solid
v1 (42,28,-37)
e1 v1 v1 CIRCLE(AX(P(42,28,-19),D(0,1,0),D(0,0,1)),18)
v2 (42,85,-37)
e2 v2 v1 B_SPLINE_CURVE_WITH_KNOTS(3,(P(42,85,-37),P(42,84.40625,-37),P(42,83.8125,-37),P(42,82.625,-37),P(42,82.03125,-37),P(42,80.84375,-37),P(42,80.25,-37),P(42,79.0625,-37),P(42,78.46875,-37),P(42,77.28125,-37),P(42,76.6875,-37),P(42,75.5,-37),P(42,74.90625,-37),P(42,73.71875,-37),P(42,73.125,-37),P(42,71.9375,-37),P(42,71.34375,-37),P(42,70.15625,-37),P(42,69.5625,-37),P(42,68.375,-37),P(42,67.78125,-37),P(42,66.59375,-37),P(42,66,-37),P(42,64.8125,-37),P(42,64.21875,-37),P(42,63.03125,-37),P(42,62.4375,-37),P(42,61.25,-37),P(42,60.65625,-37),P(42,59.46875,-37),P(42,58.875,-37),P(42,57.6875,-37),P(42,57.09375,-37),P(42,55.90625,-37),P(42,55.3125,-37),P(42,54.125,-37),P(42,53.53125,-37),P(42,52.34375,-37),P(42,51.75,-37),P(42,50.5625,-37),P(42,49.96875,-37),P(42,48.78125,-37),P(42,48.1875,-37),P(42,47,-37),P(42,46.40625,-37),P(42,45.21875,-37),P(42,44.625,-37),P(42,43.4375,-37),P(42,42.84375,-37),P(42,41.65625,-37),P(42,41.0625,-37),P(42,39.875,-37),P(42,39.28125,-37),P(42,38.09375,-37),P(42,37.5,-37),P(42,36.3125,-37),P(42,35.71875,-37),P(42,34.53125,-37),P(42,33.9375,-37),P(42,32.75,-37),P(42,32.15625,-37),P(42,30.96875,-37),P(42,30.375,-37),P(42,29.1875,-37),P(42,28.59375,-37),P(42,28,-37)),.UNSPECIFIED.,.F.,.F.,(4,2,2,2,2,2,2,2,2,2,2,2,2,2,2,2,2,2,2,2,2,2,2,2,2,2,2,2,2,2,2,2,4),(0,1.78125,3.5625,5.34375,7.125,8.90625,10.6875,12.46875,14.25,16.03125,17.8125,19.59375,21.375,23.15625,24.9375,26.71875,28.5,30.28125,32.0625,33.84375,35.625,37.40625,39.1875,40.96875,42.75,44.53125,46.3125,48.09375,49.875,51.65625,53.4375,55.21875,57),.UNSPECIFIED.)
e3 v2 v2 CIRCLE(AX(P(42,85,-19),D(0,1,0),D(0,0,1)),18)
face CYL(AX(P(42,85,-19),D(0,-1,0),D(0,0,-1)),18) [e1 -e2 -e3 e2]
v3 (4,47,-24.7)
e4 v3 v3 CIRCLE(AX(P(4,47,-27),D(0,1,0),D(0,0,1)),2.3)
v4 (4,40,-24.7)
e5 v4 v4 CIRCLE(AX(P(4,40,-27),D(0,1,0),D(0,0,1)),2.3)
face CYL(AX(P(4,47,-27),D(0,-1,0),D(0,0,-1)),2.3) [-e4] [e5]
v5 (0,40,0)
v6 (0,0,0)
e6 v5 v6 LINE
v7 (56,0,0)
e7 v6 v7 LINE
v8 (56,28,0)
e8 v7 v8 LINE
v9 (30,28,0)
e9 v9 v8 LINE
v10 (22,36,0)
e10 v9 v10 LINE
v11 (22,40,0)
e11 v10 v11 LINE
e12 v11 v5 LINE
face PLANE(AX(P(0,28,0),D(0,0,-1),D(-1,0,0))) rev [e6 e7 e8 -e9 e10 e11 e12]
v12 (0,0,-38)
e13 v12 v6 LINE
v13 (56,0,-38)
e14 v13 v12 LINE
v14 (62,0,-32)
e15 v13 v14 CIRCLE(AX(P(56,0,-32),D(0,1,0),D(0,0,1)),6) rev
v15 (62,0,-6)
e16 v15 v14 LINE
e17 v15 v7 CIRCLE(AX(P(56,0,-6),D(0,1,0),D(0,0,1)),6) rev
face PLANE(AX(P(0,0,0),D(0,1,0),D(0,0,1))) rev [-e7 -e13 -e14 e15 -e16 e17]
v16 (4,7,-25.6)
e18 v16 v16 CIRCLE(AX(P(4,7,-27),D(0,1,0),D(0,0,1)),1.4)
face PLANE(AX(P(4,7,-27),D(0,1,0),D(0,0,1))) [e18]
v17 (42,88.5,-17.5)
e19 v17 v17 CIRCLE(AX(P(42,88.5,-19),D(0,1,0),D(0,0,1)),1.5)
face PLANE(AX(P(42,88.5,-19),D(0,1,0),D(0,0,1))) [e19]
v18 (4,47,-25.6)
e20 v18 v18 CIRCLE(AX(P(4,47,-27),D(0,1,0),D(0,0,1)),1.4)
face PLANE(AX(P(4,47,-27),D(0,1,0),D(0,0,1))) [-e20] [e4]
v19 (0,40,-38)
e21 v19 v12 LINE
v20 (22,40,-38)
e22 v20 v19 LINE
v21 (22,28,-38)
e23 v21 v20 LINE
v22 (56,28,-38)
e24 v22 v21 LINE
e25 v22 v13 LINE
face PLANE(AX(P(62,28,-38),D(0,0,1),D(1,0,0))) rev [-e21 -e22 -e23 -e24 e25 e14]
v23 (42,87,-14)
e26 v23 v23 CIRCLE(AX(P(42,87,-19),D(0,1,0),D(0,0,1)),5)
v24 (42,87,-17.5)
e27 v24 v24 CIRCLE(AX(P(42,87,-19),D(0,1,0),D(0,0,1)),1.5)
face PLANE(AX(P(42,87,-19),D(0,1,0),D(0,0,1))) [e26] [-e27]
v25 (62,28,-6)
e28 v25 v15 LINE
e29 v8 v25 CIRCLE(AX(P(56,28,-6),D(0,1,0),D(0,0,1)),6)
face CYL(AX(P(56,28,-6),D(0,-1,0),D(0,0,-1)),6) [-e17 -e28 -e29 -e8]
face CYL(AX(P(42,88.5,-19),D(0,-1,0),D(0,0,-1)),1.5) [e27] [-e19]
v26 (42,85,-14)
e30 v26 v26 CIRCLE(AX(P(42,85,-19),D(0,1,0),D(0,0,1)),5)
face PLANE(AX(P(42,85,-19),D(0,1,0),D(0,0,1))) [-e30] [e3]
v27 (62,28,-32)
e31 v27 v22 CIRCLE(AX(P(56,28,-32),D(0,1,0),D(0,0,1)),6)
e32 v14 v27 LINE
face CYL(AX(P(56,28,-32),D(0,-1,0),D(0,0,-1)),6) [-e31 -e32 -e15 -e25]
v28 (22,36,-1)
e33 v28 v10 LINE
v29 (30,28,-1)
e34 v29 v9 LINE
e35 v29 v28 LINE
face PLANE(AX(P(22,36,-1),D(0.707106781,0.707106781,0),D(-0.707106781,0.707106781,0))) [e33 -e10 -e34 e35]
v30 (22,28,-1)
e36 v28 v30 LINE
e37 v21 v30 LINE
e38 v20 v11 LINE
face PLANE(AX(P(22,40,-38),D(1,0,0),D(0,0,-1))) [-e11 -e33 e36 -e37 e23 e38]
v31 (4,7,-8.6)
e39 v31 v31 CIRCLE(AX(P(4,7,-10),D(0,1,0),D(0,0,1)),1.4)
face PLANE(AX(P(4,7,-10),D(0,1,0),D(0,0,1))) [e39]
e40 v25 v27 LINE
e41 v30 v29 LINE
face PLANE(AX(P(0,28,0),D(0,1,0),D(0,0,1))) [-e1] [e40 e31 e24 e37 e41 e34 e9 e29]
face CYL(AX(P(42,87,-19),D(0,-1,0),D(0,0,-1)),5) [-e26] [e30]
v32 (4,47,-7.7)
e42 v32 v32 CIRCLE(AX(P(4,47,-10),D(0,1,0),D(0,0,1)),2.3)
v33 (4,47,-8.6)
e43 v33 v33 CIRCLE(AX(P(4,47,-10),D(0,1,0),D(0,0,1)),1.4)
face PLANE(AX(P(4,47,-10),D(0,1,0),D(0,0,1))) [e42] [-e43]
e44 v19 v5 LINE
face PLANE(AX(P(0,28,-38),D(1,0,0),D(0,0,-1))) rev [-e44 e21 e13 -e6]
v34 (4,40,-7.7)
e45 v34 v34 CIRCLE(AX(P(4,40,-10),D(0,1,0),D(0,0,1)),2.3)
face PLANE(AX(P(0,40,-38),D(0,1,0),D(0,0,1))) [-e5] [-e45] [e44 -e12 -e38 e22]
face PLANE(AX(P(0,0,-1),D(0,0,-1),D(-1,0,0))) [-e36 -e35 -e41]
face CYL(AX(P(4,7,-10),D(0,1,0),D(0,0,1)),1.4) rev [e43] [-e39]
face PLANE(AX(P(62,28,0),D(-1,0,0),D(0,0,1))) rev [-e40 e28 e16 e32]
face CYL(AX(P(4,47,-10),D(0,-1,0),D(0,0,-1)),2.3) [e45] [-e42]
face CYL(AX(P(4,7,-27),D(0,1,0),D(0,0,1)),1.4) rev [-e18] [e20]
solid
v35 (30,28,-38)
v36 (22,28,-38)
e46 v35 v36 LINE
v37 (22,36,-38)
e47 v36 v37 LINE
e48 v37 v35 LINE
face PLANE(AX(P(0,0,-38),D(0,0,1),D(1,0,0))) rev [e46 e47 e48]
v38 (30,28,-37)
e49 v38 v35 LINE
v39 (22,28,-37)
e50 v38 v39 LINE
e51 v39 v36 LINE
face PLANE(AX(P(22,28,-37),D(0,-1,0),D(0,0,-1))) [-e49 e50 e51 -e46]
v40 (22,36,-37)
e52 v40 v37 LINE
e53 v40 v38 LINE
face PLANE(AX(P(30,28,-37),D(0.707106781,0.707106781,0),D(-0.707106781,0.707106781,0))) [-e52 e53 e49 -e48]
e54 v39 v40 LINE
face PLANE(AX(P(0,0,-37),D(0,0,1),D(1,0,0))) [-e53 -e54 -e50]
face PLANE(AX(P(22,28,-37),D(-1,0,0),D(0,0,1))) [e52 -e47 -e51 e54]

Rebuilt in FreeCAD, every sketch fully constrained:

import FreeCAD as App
import Part
import Sketcher
from FreeCAD import Vector
Q = App.Units.Quantity


def edges_at(feature, points):
    """Names of the edges that pass closest to the given points."""
    edges = feature.Shape.Edges
    near = lambda p: min(range(len(edges)), key=lambda i: edges[i].distToShape(Part.Vertex(*p))[0])
    return sorted({f"Edge{near(p) + 1}" for p in points})

doc = App.newDocument("Part")
body = doc.addObject("PartDesign::Body", "Body")

# Sketch on XZ plane
sketch1 = body.newObject("Sketcher::SketchObject", "Sketch")
sketch1.AttachmentSupport = (doc.getObject("XZ_Plane"), [""])
sketch1.MapMode = "FlatFace"
sketch1.addGeometry([
    Part.LineSegment(Vector(0, -38, 0), Vector(0, 0, 0)),
    Part.LineSegment(Vector(0, 0, 0), Vector(62, 0, 0)),
    Part.LineSegment(Vector(62, 0, 0), Vector(62, -38, 0)),
    Part.LineSegment(Vector(62, -38, 0), Vector(0, -38, 0)),
], False)
sketch1.addConstraint([
    Sketcher.Constraint("Coincident", 0, 2, 1, 1),
    Sketcher.Constraint("Coincident", 1, 2, 2, 1),
    Sketcher.Constraint("Coincident", 2, 2, 3, 1),
    Sketcher.Constraint("Coincident", 3, 2, 0, 1),
    Sketcher.Constraint("Vertical", 0),
    Sketcher.Constraint("Horizontal", 1),
    Sketcher.Constraint("Vertical", 2),
    Sketcher.Constraint("Horizontal", 3),
    Sketcher.Constraint("Coincident", 0, 2, -1, 1),
    Sketcher.Constraint("DistanceX", 1, 1, 1, 2, Q("62 mm")),
    Sketcher.Constraint("DistanceY", 0, 1, 0, 2, Q("38 mm")),
])
pad1 = body.newObject("PartDesign::Pad", "Pad")
pad1.Profile = sketch1
pad1.Length = 28
pad1.Reversed = True
doc.recompute()

fillet = body.newObject("PartDesign::Fillet", "Fillet")
fillet.Base = (pad1, edges_at(pad1, [(62, 14, -38), (62, 14, 0)]))
fillet.Radius = 6

# Sketch on XY plane
sketch2 = body.newObject("Sketcher::SketchObject", "Sketch001")
sketch2.AttachmentSupport = (doc.getObject("XY_Plane"), [""])
sketch2.MapMode = "FlatFace"
sketch2.addGeometry([
    Part.LineSegment(Vector(0, 40, 0), Vector(0, 28, 0)),
    Part.LineSegment(Vector(0, 28, 0), Vector(22, 28, 0)),
    Part.LineSegment(Vector(22, 28, 0), Vector(22, 40, 0)),
    Part.LineSegment(Vector(22, 40, 0), Vector(0, 40, 0)),
], False)
sketch2.addConstraint([
    Sketcher.Constraint("Coincident", 0, 2, 1, 1),
    Sketcher.Constraint("Coincident", 1, 2, 2, 1),
    Sketcher.Constraint("Coincident", 2, 2, 3, 1),
    Sketcher.Constraint("Coincident", 3, 2, 0, 1),
    Sketcher.Constraint("Vertical", 0),
    Sketcher.Constraint("Horizontal", 1),
    Sketcher.Constraint("Vertical", 2),
    Sketcher.Constraint("Horizontal", 3),
    Sketcher.Constraint("PointOnObject", 0, 2, -2),
    Sketcher.Constraint("DistanceX", 1, 1, 1, 2, Q("22 mm")),
    Sketcher.Constraint("DistanceY", 0, 2, 0, 1, Q("12 mm")),
    Sketcher.Constraint("DistanceY", -1, 1, 0, 2, Q("28 mm")),
])
pad2 = body.newObject("PartDesign::Pad", "Pad001")
pad2.Profile = sketch2
pad2.Length = 38
pad2.Reversed = True

# Sketch on XZ plane
sketch3 = body.newObject("Sketcher::SketchObject", "Sketch002")
sketch3.AttachmentSupport = (doc.getObject("XZ_Plane"), [""])
sketch3.MapMode = "FlatFace"
sketch3.AttachmentOffset = App.Placement(Vector(0, 0, -40), App.Rotation())
sketch3.addGeometry([
    Part.Circle(Vector(4, -10, 0), Vector(0, 0, 1), 2.3),
    Part.Circle(Vector(4, -27, 0), Vector(0, 0, 1), 2.3),
], False)
sketch3.addConstraint([
    Sketcher.Constraint("Equal", 0, 1),
    Sketcher.Constraint("Vertical", 0, 3, 1, 3),
    Sketcher.Constraint("Diameter", 0, Q("4.6 mm")),
    Sketcher.Constraint("DistanceX", -1, 1, 0, 3, Q("4 mm")),
    Sketcher.Constraint("DistanceY", 0, 3, -1, 1, Q("10 mm")),
    Sketcher.Constraint("DistanceY", 1, 3, -1, 1, Q("27 mm")),
])
pad3 = body.newObject("PartDesign::Pad", "Pad002")
pad3.Profile = sketch3
pad3.Length = 7
pad3.Reversed = True

# Sketch on XZ plane
sketch4 = body.newObject("Sketcher::SketchObject", "Sketch003")
sketch4.AttachmentSupport = (doc.getObject("XZ_Plane"), [""])
sketch4.MapMode = "FlatFace"
sketch4.AttachmentOffset = App.Placement(Vector(0, 0, -47), App.Rotation())
sketch4.addGeometry([
    Part.Circle(Vector(4, -10, 0), Vector(0, 0, 1), 1.4),
    Part.Circle(Vector(4, -27, 0), Vector(0, 0, 1), 1.4),
], False)
sketch4.addConstraint([
    Sketcher.Constraint("Equal", 0, 1),
    Sketcher.Constraint("Vertical", 0, 3, 1, 3),
    Sketcher.Constraint("Diameter", 0, Q("2.8 mm")),
    Sketcher.Constraint("DistanceX", -1, 1, 0, 3, Q("4 mm")),
    Sketcher.Constraint("DistanceY", 0, 3, -1, 1, Q("10 mm")),
    Sketcher.Constraint("DistanceY", 1, 3, -1, 1, Q("27 mm")),
])
pocket1 = body.newObject("PartDesign::Pocket", "Pocket")
pocket1.Profile = sketch4
pocket1.Length = 40
pocket1.Reversed = True

# Sketch on XZ plane
sketch5 = body.newObject("Sketcher::SketchObject", "Sketch004")
sketch5.AttachmentSupport = (doc.getObject("XZ_Plane"), [""])
sketch5.MapMode = "FlatFace"
sketch5.AttachmentOffset = App.Placement(Vector(0, 0, -28), App.Rotation())
sketch5.addGeometry(Part.Circle(Vector(42, -19, 0), Vector(0, 0, 1), 18), False)
sketch5.addConstraint([
    Sketcher.Constraint("Diameter", 0, Q("36 mm")),
    Sketcher.Constraint("DistanceX", -1, 1, 0, 3, Q("42 mm")),
    Sketcher.Constraint("DistanceY", 0, 3, -1, 1, Q("19 mm")),
])
pad4 = body.newObject("PartDesign::Pad", "Pad003")
pad4.Profile = sketch5
pad4.Length = 57
pad4.Reversed = True

# Sketch on XZ plane
sketch6 = body.newObject("Sketcher::SketchObject", "Sketch005")
sketch6.AttachmentSupport = (doc.getObject("XZ_Plane"), [""])
sketch6.MapMode = "FlatFace"
sketch6.AttachmentOffset = App.Placement(Vector(0, 0, -85), App.Rotation())
sketch6.addGeometry(Part.Circle(Vector(42, -19, 0), Vector(0, 0, 1), 5), False)
sketch6.addConstraint([
    Sketcher.Constraint("Diameter", 0, Q("10 mm")),
    Sketcher.Constraint("DistanceX", -1, 1, 0, 3, Q("42 mm")),
    Sketcher.Constraint("DistanceY", 0, 3, -1, 1, Q("19 mm")),
])
pad5 = body.newObject("PartDesign::Pad", "Pad004")
pad5.Profile = sketch6
pad5.Length = 2
pad5.Reversed = True

# Sketch on XY plane
sketch7 = body.newObject("Sketcher::SketchObject", "Sketch006")
sketch7.AttachmentSupport = (doc.getObject("XY_Plane"), [""])
sketch7.MapMode = "FlatFace"
sketch7.addGeometry([
    Part.LineSegment(Vector(22, 28, 0), Vector(30, 28, 0)),
    Part.LineSegment(Vector(30, 28, 0), Vector(22, 36, 0)),
    Part.LineSegment(Vector(22, 36, 0), Vector(22, 28, 0)),
], False)
sketch7.addConstraint([
    Sketcher.Constraint("Coincident", 0, 2, 1, 1),
    Sketcher.Constraint("Coincident", 1, 2, 2, 1),
    Sketcher.Constraint("Coincident", 2, 2, 0, 1),
    Sketcher.Constraint("Horizontal", 0),
    Sketcher.Constraint("Vertical", 2),
    Sketcher.Constraint("Equal", 0, 2),
    Sketcher.Constraint("DistanceX", 0, 1, 0, 2, Q("8 mm")),
    Sketcher.Constraint("DistanceX", -1, 1, 0, 2, Q("30 mm")),
    Sketcher.Constraint("DistanceY", -1, 1, 0, 2, Q("28 mm")),
])
pad6 = body.newObject("PartDesign::Pad", "Pad005")
pad6.Profile = sketch7
pad6.Length = 1
pad6.Reversed = True

# Sketch on XZ plane
sketch8 = body.newObject("Sketcher::SketchObject", "Sketch007")
sketch8.AttachmentSupport = (doc.getObject("XZ_Plane"), [""])
sketch8.MapMode = "FlatFace"
sketch8.AttachmentOffset = App.Placement(Vector(0, 0, -87), App.Rotation())
sketch8.addGeometry(Part.Circle(Vector(42, -19, 0), Vector(0, 0, 1), 1.5), False)
sketch8.addConstraint([
    Sketcher.Constraint("Diameter", 0, Q("3 mm")),
    Sketcher.Constraint("DistanceX", -1, 1, 0, 3, Q("42 mm")),
    Sketcher.Constraint("DistanceY", 0, 3, -1, 1, Q("19 mm")),
])
pad7 = body.newObject("PartDesign::Pad", "Pad006")
pad7.Profile = sketch8
pad7.Length = 1.5
pad7.Reversed = True
body2 = doc.addObject("PartDesign::Body", "Body001")

# Sketch on XY plane
sketch9 = body2.newObject("Sketcher::SketchObject", "Sketch008")
sketch9.AttachmentSupport = (doc.getObject("XY_Plane001"), [""])
sketch9.MapMode = "FlatFace"
sketch9.AttachmentOffset = App.Placement(Vector(0, 0, -38), App.Rotation())
sketch9.addGeometry([
    Part.LineSegment(Vector(22, 28, 0), Vector(22, 36, 0)),
    Part.LineSegment(Vector(22, 36, 0), Vector(30, 28, 0)),
    Part.LineSegment(Vector(30, 28, 0), Vector(22, 28, 0)),
], False)
sketch9.addConstraint([
    Sketcher.Constraint("Coincident", 0, 2, 1, 1),
    Sketcher.Constraint("Coincident", 1, 2, 2, 1),
    Sketcher.Constraint("Coincident", 2, 2, 0, 1),
    Sketcher.Constraint("Vertical", 0),
    Sketcher.Constraint("Horizontal", 2),
    Sketcher.Constraint("Equal", 2, 0),
    Sketcher.Constraint("DistanceX", 2, 2, 2, 1, Q("8 mm")),
    Sketcher.Constraint("DistanceX", -1, 1, 0, 2, Q("22 mm")),
    Sketcher.Constraint("DistanceY", -1, 1, 0, 2, Q("36 mm")),
])
pad8 = body2.newObject("PartDesign::Pad", "Pad007")
pad8.Profile = sketch9
pad8.Length = 1

doc.recompute()
